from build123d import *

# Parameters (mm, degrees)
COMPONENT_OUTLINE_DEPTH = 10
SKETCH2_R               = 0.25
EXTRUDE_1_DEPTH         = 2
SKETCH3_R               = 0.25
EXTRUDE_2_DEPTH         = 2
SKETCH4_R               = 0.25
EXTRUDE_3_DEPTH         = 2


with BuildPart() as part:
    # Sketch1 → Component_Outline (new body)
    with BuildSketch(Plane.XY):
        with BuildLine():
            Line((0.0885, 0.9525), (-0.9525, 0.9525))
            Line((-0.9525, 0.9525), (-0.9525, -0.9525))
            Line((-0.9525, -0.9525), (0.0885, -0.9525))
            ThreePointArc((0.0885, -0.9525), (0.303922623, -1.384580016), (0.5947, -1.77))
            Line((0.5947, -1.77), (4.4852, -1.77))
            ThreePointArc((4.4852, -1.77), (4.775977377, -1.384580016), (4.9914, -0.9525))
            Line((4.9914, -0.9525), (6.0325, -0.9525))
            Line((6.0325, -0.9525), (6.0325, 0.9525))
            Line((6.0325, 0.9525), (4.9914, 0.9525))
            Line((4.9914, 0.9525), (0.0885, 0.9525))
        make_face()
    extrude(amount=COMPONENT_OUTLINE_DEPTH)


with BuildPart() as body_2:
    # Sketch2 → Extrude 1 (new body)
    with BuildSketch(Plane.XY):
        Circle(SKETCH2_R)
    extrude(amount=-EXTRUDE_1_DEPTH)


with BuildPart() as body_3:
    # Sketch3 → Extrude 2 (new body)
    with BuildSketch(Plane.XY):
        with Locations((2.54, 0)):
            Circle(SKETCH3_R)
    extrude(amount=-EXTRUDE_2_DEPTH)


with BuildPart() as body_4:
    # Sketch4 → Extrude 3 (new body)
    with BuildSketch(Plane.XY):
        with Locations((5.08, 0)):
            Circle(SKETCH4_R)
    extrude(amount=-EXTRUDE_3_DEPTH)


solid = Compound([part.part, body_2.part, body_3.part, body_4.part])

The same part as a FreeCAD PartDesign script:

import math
import FreeCAD as App
import Part
import Sketcher
from FreeCAD import Vector

doc = App.newDocument("Part")
body = doc.addObject("PartDesign::Body", "Body")

# Sketch on XY plane
sketch1 = doc.addObject("Sketcher::SketchObject", "Sketch")
body.addObject(sketch1)
sketch1.AttachmentSupport = (doc.XY_Plane, [""])
sketch1.MapMode = "FlatFace"
sketch1.addGeometry(Part.LineSegment(Vector(-1, 1, 0), Vector(-1, -1, 0)), False)
sketch1.addGeometry(Part.LineSegment(Vector(-1, -1, 0), Vector(0.1, -1, 0)), False)
sketch1.addGeometry(Part.ArcOfCircle(Part.Circle(Vector(2.5, 0, 0), Vector(0, 0, 1), 2.6), math.radians(-159), math.radians(-138)), False)
sketch1.addGeometry(Part.LineSegment(Vector(0.6, -1.8, 0), Vector(4.5, -1.8, 0)), False)
sketch1.addGeometry(Part.ArcOfCircle(Part.Circle(Vector(2.5, 0, 0), Vector(0, 0, 1), 2.6), math.radians(-42), math.radians(-21)), False)
sketch1.addGeometry(Part.LineSegment(Vector(5, -1, 0), Vector(6, -1, 0)), False)
sketch1.addGeometry(Part.LineSegment(Vector(6, -1, 0), Vector(6, 1, 0)), False)
sketch1.addGeometry(Part.LineSegment(Vector(6, 1, 0), Vector(-1, 1, 0)), False)
sketch1.addConstraint(Sketcher.Constraint("Coincident", 0, 2, 1, 1))
sketch1.addConstraint(Sketcher.Constraint("Coincident", 1, 2, 2, 1))
sketch1.addConstraint(Sketcher.Constraint("Coincident", 2, 2, 3, 1))
sketch1.addConstraint(Sketcher.Constraint("Coincident", 3, 2, 4, 1))
sketch1.addConstraint(Sketcher.Constraint("Coincident", 4, 2, 5, 1))
sketch1.addConstraint(Sketcher.Constraint("Coincident", 5, 2, 6, 1))
sketch1.addConstraint(Sketcher.Constraint("Coincident", 6, 2, 7, 1))
sketch1.addConstraint(Sketcher.Constraint("Coincident", 7, 2, 0, 1))
sketch1.addConstraint(Sketcher.Constraint("Vertical", 0))
sketch1.addConstraint(Sketcher.Constraint("Horizontal", 1))
sketch1.addConstraint(Sketcher.Constraint("Horizontal", 3))
sketch1.addConstraint(Sketcher.Constraint("Horizontal", 5))
sketch1.addConstraint(Sketcher.Constraint("Vertical", 6))
sketch1.addConstraint(Sketcher.Constraint("Horizontal", 7))
sketch1.addConstraint(Sketcher.Constraint("Equal", 2, 4))
sketch1.addConstraint(Sketcher.Constraint("Horizontal", 2, 3, 4, 3))
sketch1.addConstraint(Sketcher.Constraint("Horizontal", 1, 2, 4, 2))
sketch1.addConstraint(Sketcher.Constraint("Radius", 2, 2.629999))
sketch1.addConstraint(Sketcher.Constraint("DistanceX", 1, 1, 1, 2, 1.041))
sketch1.addConstraint(Sketcher.Constraint("DistanceX", 7, 2, 7, 1, 6.985))
sketch1.addConstraint(Sketcher.Constraint("DistanceY", 0, 2, 0, 1, 1.905))
sketch1.addConstraint(Sketcher.Constraint("DistanceY", 2, 2, -1, 1, 1.77))
sketch1.addConstraint(Sketcher.Constraint("DistanceX", 3, 1, 3, 2, 3.8905))
sketch1.addConstraint(Sketcher.Constraint("DistanceX", 5, 1, 5, 2, 1.0411))
sketch1.addConstraint(Sketcher.Constraint("DistanceX", 0, 2, -1, 1, 0.9525))
sketch1.addConstraint(Sketcher.Constraint("DistanceY", 0, 2, -1, 1, 0.9525))
pad1 = doc.addObject("PartDesign::Pad", "Pad")
body.addObject(pad1)
pad1.Profile = sketch1
pad1.Length = 10
body2 = doc.addObject("PartDesign::Body", "Body001")

# Sketch on XY plane
sketch2 = doc.addObject("Sketcher::SketchObject", "Sketch001")
body2.addObject(sketch2)
sketch2.AttachmentSupport = (doc.getObject("XY_Plane001"), [""])
sketch2.MapMode = "FlatFace"
sketch2.addGeometry(Part.Circle(Vector(0, 0, 0), Vector(0, 0, 1), 0.25), False)
sketch2.addConstraint(Sketcher.Constraint("Coincident", 0, 3, -1, 1))
sketch2.addConstraint(Sketcher.Constraint("Diameter", 0, 0.5))
pad2 = doc.addObject("PartDesign::Pad", "Pad001")
body2.addObject(pad2)
pad2.Profile = sketch2
pad2.Length = 2
pad2.Reversed = True
body3 = doc.addObject("PartDesign::Body", "Body002")

# Sketch on XY plane
sketch3 = doc.addObject("Sketcher::SketchObject", "Sketch002")
body3.addObject(sketch3)
sketch3.AttachmentSupport = (doc.getObject("XY_Plane002"), [""])
sketch3.MapMode = "FlatFace"
sketch3.addGeometry(Part.Circle(Vector(2.54, 0, 0), Vector(0, 0, 1), 0.25), False)
sketch3.addConstraint(Sketcher.Constraint("PointOnObject", 0, 3, -1))
sketch3.addConstraint(Sketcher.Constraint("Diameter", 0, 0.5))
sketch3.addConstraint(Sketcher.Constraint("DistanceX", -1, 1, 0, 3, 2.54))
pad3 = doc.addObject("PartDesign::Pad", "Pad002")
body3.addObject(pad3)
pad3.Profile = sketch3
pad3.Length = 2
pad3.Reversed = True
body4 = doc.addObject("PartDesign::Body", "Body003")

# Sketch on XY plane
sketch4 = doc.addObject("Sketcher::SketchObject", "Sketch003")
body4.addObject(sketch4)
sketch4.AttachmentSupport = (doc.getObject("XY_Plane003"), [""])
sketch4.MapMode = "FlatFace"
sketch4.addGeometry(Part.Circle(Vector(5.08, 0, 0), Vector(0, 0, 1), 0.25), False)
sketch4.addConstraint(Sketcher.Constraint("PointOnObject", 0, 3, -1))
sketch4.addConstraint(Sketcher.Constraint("Diameter", 0, 0.5))
sketch4.addConstraint(Sketcher.Constraint("DistanceX", -1, 1, 0, 3, 5.08))
pad4 = doc.addObject("PartDesign::Pad", "Pad003")
body4.addObject(pad4)
pad4.Profile = sketch4
pad4.Length = 2
pad4.Reversed = True

doc.recompute()
